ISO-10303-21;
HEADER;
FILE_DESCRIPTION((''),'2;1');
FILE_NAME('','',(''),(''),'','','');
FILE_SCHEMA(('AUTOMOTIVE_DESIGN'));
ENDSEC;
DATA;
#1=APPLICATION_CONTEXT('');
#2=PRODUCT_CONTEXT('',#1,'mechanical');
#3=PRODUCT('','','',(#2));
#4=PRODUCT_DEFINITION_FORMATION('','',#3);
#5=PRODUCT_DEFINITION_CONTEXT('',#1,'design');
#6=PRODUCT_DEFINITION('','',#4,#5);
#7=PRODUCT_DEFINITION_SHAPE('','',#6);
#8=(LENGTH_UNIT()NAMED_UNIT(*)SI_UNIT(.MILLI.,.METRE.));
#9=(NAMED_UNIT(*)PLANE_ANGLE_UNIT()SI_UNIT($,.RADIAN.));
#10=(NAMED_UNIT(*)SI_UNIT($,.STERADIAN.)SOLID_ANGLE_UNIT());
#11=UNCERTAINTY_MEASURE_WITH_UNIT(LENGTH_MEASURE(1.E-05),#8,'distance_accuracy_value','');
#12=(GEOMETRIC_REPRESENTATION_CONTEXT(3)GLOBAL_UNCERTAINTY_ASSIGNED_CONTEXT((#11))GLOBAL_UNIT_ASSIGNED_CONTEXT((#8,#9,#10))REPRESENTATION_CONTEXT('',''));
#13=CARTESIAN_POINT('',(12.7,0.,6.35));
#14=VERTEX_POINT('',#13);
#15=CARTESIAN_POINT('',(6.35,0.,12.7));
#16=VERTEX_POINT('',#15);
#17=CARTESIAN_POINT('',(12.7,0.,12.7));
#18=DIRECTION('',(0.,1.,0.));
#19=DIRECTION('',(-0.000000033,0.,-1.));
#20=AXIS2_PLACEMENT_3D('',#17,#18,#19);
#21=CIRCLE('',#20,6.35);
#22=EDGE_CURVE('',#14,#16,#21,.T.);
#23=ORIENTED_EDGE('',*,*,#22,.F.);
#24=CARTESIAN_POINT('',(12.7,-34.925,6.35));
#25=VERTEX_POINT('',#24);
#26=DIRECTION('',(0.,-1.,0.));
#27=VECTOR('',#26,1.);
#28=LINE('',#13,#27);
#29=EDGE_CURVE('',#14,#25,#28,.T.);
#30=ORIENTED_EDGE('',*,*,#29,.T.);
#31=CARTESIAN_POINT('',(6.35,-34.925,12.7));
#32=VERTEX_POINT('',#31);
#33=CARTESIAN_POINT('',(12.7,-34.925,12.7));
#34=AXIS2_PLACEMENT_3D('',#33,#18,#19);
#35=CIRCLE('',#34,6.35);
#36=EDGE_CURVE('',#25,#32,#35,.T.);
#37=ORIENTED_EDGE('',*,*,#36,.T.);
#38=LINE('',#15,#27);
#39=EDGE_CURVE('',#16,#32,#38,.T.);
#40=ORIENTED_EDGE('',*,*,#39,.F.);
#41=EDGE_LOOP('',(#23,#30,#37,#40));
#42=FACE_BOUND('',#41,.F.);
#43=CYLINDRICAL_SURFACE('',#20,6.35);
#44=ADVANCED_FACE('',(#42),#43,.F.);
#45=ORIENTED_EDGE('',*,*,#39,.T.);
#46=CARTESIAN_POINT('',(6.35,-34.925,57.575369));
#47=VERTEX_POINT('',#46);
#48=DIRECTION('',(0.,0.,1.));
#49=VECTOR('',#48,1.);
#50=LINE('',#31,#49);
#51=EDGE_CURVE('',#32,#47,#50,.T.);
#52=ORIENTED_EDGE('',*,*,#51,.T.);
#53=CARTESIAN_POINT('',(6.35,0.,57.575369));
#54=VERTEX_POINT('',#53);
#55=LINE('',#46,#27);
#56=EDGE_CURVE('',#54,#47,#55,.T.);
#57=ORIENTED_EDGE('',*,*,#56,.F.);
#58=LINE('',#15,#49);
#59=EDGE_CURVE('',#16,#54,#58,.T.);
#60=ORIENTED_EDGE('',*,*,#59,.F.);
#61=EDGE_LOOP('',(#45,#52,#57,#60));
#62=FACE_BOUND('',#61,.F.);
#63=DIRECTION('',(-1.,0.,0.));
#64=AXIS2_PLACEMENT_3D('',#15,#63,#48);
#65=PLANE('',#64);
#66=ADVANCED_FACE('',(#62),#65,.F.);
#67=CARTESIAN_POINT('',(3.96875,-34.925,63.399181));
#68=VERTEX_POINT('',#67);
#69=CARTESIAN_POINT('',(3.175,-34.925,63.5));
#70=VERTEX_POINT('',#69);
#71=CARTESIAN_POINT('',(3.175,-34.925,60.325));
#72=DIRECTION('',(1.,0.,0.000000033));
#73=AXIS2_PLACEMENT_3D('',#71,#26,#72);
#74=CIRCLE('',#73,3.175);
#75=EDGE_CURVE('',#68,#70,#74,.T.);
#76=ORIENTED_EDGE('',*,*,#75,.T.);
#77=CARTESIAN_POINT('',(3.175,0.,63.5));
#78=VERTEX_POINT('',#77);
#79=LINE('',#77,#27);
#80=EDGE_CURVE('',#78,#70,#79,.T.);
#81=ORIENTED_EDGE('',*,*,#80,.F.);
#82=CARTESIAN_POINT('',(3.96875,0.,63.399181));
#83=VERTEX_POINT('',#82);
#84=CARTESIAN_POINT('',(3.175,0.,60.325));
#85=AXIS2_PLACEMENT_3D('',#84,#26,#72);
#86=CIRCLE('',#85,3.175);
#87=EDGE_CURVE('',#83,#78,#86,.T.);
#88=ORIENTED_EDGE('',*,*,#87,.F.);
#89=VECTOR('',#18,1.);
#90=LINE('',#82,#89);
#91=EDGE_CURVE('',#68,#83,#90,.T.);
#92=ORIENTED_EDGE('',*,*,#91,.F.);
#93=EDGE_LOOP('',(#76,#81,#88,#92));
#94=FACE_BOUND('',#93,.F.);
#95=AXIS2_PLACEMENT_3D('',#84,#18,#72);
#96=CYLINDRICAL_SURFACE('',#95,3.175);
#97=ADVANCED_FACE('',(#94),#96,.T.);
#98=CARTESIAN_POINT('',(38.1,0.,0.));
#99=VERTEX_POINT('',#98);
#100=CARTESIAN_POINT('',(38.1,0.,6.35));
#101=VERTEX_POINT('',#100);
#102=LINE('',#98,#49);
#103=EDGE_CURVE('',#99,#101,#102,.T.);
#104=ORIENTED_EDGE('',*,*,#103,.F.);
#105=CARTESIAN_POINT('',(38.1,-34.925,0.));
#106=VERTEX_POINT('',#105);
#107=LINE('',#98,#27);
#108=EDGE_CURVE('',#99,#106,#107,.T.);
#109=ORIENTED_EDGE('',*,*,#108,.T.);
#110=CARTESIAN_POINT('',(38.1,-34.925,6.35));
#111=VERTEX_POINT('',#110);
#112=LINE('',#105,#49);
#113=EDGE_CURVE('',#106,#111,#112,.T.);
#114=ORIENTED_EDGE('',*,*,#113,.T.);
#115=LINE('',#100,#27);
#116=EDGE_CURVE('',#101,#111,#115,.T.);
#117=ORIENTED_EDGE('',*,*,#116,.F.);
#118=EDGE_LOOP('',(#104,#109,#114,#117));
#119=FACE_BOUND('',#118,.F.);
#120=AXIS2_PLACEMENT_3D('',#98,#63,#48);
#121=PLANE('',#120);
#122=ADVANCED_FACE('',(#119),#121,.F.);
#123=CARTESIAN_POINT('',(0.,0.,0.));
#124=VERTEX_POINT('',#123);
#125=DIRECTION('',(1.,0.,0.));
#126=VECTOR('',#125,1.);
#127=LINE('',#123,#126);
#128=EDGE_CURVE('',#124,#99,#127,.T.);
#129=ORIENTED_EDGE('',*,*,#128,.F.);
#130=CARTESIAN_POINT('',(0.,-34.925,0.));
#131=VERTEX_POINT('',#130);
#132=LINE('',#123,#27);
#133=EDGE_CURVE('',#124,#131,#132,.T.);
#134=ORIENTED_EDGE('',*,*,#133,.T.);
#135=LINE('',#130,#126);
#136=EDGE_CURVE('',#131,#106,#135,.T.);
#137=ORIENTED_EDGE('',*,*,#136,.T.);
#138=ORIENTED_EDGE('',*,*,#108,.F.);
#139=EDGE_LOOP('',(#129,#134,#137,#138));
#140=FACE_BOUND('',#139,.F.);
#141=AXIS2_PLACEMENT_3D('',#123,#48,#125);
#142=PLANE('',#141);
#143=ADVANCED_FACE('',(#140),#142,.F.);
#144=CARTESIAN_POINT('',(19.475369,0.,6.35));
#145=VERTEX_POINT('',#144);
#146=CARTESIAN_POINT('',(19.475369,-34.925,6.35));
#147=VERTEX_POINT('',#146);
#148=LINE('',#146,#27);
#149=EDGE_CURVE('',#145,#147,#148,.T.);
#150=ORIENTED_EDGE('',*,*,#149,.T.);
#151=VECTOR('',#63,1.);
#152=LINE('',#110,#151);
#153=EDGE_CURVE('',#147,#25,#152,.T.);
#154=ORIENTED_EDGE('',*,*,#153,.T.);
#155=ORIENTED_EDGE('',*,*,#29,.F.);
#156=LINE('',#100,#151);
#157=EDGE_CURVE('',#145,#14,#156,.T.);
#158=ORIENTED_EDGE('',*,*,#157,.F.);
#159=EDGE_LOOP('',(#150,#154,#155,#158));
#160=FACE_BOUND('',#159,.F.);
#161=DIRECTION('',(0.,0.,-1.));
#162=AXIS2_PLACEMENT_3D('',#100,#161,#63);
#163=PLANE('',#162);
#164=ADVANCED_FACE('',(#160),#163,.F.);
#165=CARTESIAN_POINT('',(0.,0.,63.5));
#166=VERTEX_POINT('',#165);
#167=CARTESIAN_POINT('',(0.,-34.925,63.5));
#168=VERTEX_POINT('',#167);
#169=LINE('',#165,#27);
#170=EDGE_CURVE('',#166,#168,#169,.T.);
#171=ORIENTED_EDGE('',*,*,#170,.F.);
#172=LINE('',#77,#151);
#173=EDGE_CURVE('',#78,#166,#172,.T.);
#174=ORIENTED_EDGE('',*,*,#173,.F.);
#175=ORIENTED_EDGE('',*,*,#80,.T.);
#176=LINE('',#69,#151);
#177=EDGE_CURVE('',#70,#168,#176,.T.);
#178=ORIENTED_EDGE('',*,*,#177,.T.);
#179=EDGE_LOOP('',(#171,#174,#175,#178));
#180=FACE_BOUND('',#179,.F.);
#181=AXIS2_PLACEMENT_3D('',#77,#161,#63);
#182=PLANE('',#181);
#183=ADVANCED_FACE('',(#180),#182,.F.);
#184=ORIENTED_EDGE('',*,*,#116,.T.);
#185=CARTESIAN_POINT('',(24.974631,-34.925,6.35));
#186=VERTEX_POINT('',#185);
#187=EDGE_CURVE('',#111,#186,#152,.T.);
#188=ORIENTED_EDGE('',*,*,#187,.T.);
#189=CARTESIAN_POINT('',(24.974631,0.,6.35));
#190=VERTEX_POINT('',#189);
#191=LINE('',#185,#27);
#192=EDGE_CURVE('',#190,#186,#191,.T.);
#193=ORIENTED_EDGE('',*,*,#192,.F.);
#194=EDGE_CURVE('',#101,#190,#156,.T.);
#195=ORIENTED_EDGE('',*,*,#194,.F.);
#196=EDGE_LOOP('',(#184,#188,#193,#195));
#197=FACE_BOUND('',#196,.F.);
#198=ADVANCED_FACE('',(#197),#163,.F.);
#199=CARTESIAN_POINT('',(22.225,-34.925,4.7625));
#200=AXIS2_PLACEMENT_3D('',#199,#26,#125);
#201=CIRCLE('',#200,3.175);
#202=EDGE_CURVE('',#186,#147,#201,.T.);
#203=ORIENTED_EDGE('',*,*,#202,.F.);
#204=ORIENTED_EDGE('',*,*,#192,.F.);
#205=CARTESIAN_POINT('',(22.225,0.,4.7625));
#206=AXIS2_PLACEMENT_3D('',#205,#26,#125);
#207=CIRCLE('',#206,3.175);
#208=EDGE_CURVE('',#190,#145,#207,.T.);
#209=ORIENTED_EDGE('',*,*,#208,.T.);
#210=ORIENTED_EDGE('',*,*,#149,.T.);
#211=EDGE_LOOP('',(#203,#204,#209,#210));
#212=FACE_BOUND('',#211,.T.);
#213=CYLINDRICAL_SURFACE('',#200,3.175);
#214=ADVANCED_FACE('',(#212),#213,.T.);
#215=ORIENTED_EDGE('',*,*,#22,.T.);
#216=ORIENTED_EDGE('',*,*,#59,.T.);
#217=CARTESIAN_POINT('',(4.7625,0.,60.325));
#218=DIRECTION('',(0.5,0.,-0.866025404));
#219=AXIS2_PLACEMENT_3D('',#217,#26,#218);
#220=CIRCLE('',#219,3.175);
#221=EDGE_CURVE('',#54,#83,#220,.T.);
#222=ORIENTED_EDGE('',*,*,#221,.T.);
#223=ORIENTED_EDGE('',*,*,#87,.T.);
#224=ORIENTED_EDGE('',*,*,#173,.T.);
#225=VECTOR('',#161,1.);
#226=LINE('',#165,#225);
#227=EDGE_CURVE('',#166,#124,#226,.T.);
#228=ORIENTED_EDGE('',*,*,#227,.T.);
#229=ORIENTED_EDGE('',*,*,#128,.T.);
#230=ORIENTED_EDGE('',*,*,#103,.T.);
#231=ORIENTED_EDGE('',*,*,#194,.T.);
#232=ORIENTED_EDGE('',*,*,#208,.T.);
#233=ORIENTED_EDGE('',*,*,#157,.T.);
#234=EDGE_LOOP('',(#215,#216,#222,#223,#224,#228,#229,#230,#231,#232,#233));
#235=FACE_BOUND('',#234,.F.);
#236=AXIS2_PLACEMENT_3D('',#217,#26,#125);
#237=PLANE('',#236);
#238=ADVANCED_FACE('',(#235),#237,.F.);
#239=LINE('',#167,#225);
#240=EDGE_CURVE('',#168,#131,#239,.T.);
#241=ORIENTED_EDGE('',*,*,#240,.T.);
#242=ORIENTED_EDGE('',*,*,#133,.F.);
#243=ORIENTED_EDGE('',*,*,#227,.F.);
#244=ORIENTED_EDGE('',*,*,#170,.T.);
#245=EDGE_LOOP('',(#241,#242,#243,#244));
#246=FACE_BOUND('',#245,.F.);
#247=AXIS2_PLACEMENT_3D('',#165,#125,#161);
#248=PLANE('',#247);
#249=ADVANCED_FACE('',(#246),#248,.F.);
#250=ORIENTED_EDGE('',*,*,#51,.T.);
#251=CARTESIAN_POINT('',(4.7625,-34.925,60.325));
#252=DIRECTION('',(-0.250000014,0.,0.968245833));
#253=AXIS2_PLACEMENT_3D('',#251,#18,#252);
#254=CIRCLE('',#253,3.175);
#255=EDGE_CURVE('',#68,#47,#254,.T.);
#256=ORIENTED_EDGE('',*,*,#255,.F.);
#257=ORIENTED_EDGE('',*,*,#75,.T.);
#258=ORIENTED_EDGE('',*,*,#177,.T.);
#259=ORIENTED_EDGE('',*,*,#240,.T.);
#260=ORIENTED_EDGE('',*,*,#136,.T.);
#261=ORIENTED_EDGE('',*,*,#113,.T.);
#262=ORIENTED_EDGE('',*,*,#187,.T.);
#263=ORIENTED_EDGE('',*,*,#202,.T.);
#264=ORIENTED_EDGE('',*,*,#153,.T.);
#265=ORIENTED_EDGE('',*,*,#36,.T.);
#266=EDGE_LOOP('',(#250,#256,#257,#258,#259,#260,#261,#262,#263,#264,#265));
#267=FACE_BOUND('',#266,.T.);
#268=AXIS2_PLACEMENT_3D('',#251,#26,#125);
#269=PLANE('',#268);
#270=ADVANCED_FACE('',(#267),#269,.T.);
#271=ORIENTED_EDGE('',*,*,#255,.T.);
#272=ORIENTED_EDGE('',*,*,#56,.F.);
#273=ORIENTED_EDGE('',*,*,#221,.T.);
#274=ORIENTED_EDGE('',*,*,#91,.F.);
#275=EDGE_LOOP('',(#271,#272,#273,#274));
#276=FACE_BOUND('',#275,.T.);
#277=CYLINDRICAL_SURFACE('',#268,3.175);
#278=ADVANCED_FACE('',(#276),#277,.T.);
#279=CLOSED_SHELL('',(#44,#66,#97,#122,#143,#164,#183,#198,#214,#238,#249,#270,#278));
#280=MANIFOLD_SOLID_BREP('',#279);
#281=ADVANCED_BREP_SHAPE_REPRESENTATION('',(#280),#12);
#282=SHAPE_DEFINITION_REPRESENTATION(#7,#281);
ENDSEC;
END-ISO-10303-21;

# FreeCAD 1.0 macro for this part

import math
import FreeCAD as App
import Part
import Sketcher

V = App.Vector
Q = App.Units.Quantity

doc = App.newDocument("Part")
body = doc.addObject("PartDesign::Body", "Body")

# Sketch on XZ plane
sketch1 = body.newObject("Sketcher::SketchObject", "Sketch")
sketch1.AttachmentSupport = (doc.getObject("XZ_Plane"), [""])
sketch1.MapMode = "FlatFace"
sketch1.addGeometry([
    Part.LineSegment(V(3.175, 63.5, 0), V(0, 63.5, 0)),  # 0
    Part.LineSegment(V(0, 63.5, 0), V(0, 0, 0)),  # 1
    Part.LineSegment(V(0, 0, 0), V(38.1, 0, 0)),  # 2
    Part.LineSegment(V(38.1, 0, 0), V(38.1, 6.35, 0)),  # 3
    Part.LineSegment(V(38.1, 6.35, 0), V(12.7, 6.35, 0)),  # 4
    Part.ArcOfCircle(Part.Circle(V(12.7, 12.7, 0), V(0, 0, 1), 6.35), math.radians(-179.999998), math.radians(-90.000002)),  # 5
    Part.LineSegment(V(6.35, 12.7, 0), V(6.35, 60.325, 0)),  # 6
    Part.ArcOfCircle(Part.Circle(V(3.175, 60.325, 0), V(0, 0, 1), 3.175), math.radians(0.000002), math.radians(89.999998)),  # 7
], False)
sketch1.addConstraint([
    Sketcher.Constraint("Coincident", 0, 2, 1, 1),
    Sketcher.Constraint("Coincident", 1, 2, 2, 1),
    Sketcher.Constraint("Coincident", 2, 2, 3, 1),
    Sketcher.Constraint("Coincident", 3, 2, 4, 1),
    Sketcher.Constraint("Tangent", 4, 2, 5, 2),
    Sketcher.Constraint("Tangent", 5, 1, 6, 1),
    Sketcher.Constraint("Tangent", 6, 2, 7, 1),
    Sketcher.Constraint("Tangent", 7, 2, 0, 1),
    Sketcher.Constraint("Horizontal", 0),
    Sketcher.Constraint("Vertical", 1),
    Sketcher.Constraint("Horizontal", 2),
    Sketcher.Constraint("Vertical", 3),
    Sketcher.Constraint("Horizontal", 4),
    Sketcher.Constraint("Vertical", 6),
    Sketcher.Constraint("Coincident", 1, 2, -1, 1),
    Sketcher.Constraint("DistanceX", 4, 2, 4, 1, Q("1 in")),
    Sketcher.Constraint("Radius", 5, Q("0.25 in")),
    Sketcher.Constraint("DistanceX", 2, 1, 2, 2, Q("1.5 in")),
    Sketcher.Constraint("DistanceY", 1, 2, 1, 1, Q("2.5 in")),
    Sketcher.Constraint("Radius", 7, Q("0.125 in")),
    Sketcher.Constraint("DistanceY", 5, 3, 0, 2, Q("2 in")),
])
pad1 = body.newObject("PartDesign::Pad", "Pad")
pad1.Profile = sketch1
pad1.Length = Q("1.375 in")

# Sketch on XZ plane
sketch2 = body.newObject("Sketcher::SketchObject", "Sketch001")
sketch2.AttachmentSupport = (doc.getObject("XZ_Plane"), [""])
sketch2.MapMode = "FlatFace"
sketch2.AttachmentOffset = App.Placement(V(0, 0, 1.375 * 25.4), App.Rotation())
sketch2.addGeometry([
    Part.Circle(V(4.7625, 60.325, 0), V(0, 0, 1), 3.175),
    Part.Circle(V(22.225, 4.7625, 0), V(0, 0, 1), 3.175),
], False)
sketch2.addConstraint([
    Sketcher.Constraint("Equal", 0, 1),
    Sketcher.Constraint("Diameter", 0, Q("0.25 in")),
    Sketcher.Constraint("DistanceX", -1, 1, 0, 3, Q("0.1875 in")),
    Sketcher.Constraint("DistanceY", -1, 1, 0, 3, Q("2.375 in")),
    Sketcher.Constraint("DistanceX", -1, 1, 1, 3, Q("0.875 in")),
    Sketcher.Constraint("DistanceY", -1, 1, 1, 3, Q("0.1875 in")),
])
pad2 = body.newObject("PartDesign::Pad", "Pad001")
pad2.Profile = sketch2
pad2.Length = Q("1.375 in")
pad2.Reversed = True

doc.recompute()
